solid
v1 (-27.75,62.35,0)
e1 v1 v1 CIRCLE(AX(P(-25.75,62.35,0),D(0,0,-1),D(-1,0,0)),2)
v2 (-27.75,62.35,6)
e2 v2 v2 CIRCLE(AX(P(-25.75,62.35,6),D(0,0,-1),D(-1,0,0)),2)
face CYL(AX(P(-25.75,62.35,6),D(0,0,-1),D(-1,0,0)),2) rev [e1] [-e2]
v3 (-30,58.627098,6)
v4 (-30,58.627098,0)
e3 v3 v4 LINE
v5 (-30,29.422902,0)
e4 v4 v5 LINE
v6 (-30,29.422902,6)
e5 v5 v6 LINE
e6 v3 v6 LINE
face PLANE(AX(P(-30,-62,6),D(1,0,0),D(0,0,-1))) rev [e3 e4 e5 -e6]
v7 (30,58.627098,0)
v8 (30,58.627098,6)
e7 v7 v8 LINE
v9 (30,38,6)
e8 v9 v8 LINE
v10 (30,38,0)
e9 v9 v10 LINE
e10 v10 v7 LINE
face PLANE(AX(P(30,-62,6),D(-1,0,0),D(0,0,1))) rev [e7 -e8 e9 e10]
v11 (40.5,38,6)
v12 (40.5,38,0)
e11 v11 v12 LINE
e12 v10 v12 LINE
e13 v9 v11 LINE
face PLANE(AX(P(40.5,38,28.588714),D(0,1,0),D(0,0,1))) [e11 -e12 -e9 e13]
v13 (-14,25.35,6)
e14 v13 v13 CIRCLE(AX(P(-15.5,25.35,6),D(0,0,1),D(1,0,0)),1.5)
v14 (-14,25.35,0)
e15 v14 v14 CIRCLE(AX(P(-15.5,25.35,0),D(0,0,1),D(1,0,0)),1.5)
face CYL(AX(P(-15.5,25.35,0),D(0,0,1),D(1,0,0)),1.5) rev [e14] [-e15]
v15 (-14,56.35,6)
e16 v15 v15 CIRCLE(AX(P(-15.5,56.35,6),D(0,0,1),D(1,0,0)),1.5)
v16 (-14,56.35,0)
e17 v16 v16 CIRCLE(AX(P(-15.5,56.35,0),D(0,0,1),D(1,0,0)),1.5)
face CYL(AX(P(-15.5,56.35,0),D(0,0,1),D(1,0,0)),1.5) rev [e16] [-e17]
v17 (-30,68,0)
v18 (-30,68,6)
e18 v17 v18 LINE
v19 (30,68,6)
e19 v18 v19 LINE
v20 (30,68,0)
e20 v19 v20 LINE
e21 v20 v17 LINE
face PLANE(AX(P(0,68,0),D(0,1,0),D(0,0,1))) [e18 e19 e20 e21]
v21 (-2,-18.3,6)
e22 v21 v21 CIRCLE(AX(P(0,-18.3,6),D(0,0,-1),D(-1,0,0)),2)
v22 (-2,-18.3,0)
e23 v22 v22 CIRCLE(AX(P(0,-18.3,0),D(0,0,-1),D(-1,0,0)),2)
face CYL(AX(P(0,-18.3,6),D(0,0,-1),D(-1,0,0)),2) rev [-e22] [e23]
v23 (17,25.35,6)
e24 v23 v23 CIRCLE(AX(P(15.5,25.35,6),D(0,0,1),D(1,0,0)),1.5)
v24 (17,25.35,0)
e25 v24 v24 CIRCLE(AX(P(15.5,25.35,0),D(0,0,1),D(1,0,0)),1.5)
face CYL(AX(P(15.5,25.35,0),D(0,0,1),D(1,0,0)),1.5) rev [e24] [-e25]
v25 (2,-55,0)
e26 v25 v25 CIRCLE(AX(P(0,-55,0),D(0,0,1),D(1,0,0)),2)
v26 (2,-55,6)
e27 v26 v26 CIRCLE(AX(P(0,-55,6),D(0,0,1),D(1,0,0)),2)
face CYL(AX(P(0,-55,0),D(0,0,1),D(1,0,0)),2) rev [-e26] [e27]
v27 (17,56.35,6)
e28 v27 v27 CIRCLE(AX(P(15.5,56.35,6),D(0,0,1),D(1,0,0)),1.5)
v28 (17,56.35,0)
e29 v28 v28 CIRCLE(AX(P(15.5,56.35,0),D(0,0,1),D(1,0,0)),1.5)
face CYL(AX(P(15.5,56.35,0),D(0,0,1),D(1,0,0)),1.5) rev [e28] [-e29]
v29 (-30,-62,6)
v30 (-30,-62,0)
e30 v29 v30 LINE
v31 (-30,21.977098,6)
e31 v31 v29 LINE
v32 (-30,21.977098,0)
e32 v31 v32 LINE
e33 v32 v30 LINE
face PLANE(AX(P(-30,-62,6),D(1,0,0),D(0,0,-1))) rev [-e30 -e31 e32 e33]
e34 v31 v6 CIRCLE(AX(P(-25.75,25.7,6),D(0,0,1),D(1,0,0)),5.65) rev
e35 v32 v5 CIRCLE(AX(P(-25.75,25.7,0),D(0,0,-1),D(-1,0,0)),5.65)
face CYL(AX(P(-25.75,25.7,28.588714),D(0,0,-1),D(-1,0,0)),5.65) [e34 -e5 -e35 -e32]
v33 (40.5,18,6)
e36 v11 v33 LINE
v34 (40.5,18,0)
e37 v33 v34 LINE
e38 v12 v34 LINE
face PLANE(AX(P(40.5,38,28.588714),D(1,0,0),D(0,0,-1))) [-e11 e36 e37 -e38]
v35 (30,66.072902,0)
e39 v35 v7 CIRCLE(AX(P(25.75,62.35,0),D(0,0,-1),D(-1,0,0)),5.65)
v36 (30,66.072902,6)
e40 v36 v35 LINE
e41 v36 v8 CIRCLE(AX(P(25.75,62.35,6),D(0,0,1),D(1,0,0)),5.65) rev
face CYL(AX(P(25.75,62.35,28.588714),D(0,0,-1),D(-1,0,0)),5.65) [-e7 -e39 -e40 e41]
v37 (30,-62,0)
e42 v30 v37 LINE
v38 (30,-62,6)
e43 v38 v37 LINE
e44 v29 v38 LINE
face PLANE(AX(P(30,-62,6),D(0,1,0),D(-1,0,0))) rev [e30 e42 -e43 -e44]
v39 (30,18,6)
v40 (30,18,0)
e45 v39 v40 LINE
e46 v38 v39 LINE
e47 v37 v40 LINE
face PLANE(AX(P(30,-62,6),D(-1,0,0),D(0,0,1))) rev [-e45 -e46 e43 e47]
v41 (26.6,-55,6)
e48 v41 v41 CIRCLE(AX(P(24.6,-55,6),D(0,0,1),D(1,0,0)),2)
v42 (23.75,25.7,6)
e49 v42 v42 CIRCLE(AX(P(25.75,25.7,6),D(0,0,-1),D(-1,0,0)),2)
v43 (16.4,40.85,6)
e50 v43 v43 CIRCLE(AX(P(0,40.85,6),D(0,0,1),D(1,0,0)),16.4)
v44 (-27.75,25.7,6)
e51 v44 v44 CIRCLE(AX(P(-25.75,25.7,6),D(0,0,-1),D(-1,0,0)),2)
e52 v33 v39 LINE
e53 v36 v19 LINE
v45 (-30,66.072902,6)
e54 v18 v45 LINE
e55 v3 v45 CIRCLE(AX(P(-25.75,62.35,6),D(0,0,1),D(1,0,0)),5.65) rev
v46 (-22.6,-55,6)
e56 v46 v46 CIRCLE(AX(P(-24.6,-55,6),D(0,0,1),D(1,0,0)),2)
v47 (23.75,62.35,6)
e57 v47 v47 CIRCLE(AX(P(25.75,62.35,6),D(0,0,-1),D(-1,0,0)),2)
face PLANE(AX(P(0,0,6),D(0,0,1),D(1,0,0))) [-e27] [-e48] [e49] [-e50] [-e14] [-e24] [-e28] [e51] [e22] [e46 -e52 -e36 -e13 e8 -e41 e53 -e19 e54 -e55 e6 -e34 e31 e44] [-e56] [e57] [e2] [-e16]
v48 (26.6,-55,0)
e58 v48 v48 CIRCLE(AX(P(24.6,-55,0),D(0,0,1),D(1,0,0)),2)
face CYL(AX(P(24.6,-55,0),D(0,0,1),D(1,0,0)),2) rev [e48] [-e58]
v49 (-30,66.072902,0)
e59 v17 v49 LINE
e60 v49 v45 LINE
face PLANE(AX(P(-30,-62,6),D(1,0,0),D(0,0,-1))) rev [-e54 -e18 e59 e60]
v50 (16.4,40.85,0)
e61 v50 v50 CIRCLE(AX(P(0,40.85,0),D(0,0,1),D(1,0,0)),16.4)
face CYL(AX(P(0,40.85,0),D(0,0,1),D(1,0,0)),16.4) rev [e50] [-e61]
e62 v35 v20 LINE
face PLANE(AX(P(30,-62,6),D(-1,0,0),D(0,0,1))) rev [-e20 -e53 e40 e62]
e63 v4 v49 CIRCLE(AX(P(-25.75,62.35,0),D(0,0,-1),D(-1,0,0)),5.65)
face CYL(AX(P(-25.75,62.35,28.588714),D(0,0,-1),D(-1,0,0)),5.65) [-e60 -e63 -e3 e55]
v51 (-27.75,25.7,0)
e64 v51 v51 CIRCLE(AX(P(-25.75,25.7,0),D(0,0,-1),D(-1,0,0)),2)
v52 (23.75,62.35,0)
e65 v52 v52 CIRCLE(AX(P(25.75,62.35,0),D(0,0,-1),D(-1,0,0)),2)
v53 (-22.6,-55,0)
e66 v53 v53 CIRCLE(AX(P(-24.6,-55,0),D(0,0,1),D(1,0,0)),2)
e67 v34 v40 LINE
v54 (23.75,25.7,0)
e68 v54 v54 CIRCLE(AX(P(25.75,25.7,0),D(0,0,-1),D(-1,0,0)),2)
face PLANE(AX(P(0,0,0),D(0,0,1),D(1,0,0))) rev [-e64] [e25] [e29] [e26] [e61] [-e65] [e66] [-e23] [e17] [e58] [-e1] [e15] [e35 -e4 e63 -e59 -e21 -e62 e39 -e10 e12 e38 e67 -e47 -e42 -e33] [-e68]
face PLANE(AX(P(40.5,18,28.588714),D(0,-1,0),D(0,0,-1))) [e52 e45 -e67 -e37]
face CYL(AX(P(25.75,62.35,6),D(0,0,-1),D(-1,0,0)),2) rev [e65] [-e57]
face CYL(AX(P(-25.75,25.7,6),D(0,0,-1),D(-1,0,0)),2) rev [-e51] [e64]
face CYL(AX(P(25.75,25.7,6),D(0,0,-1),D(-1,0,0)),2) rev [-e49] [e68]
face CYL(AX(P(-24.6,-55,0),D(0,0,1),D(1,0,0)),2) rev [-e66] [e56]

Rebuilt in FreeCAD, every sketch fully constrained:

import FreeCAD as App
import Part
import Sketcher


def add_polygon(sketch, points):
    """Adds a closed chain of lines whose ends are joined by coincident constraints."""
    first, n = sketch.GeometryCount, len(points)
    for a, b in zip(points, points[1:] + points[:1]):
        sketch.addGeometry(Part.LineSegment(App.Vector(*a, 0), App.Vector(*b, 0)), False)
    for i in range(n):
        sketch.addConstraint(Sketcher.Constraint("Coincident", first + i, 2, first + (i + 1) % n, 1))

doc = App.newDocument("Part")
body = doc.addObject("PartDesign::Body", "Body")

# Sketch on XY plane
sketch1 = body.newObject("Sketcher::SketchObject", "Sketch")
sketch1.AttachmentSupport = (doc.getObject("XY_Plane"), [""])
sketch1.MapMode = "FlatFace"
add_polygon(sketch1, [(-30, 62), (-30, -62), (30, -62), (30, 62)])  # lines 0-3
sketch1.addConstraint([
    Sketcher.Constraint("Vertical", 0),
    Sketcher.Constraint("Horizontal", 1),
    Sketcher.Constraint("Vertical", 2),
    Sketcher.Constraint("Horizontal", 3),
    Sketcher.Constraint("Symmetric", 0, 2, 2, 2, -1, 1),
    Sketcher.Constraint("DistanceX", 1, 1, 1, 2, 60.0),
    Sketcher.Constraint("DistanceY", 0, 2, 0, 1, 124.0),
])
pad1 = body.newObject("PartDesign::Pad", "Pad")
pad1.Profile = sketch1
pad1.Length = 6

# Sketch on XY plane
sketch2 = body.newObject("Sketcher::SketchObject", "Sketch001")
sketch2.AttachmentSupport = (doc.getObject("XY_Plane"), [""])
sketch2.MapMode = "FlatFace"
sketch2.AttachmentOffset = App.Placement(App.Vector(0, 0, 6), App.Rotation())
sketch2.addGeometry([
    Part.Circle(App.Vector(0, 40.9, 0), App.Vector(0, 0, 1), 16.4),  # 0
    Part.Circle(App.Vector(-15.5, 56.4, 0), App.Vector(0, 0, 1), 1.5),  # 1
    Part.Circle(App.Vector(15.5, 56.4, 0), App.Vector(0, 0, 1), 1.5),  # 2
    Part.Circle(App.Vector(15.5, 25.4, 0), App.Vector(0, 0, 1), 1.5),  # 3
    Part.Circle(App.Vector(-15.5, 25.4, 0), App.Vector(0, 0, 1), 1.5),  # 4
], False)
sketch2.addConstraint([
    Sketcher.Constraint("Equal", 1, 2),
    Sketcher.Constraint("Equal", 2, 3),
    Sketcher.Constraint("Equal", 3, 4),
    Sketcher.Constraint("Symmetric", 1, 3, 2, 3, -2),
    Sketcher.Constraint("Symmetric", 3, 3, 4, 3, -2),
    Sketcher.Constraint("PointOnObject", 0, 3, -2),
    Sketcher.Constraint("Vertical", 2, 3, 3, 3),
    Sketcher.Constraint("Diameter", 1, 3.0),
    Sketcher.Constraint("Diameter", 0, 32.8),
    Sketcher.Constraint("DistanceX", 1, 3, 2, 3, 31.0),
    Sketcher.Constraint("DistanceY", 3, 3, 2, 3, 31.0),
    Sketcher.Constraint("DistanceY", 0, 3, 1, 3, 15.5),
    Sketcher.Constraint("DistanceY", -1, 1, 0, 3, 40.85),
])
pocket1 = body.newObject("PartDesign::Pocket", "Pocket")
pocket1.Profile = sketch2
pocket1.Type = "ThroughAll"

# Sketch on XY plane
sketch3 = body.newObject("Sketcher::SketchObject", "Sketch002")
sketch3.AttachmentSupport = (doc.getObject("XY_Plane"), [""])
sketch3.MapMode = "FlatFace"
sketch3.AttachmentOffset = App.Placement(App.Vector(0, 0, 6), App.Rotation())
sketch3.addGeometry([
    Part.Circle(App.Vector(-24.6, -55, 0), App.Vector(0, 0, 1), 2),
    Part.Circle(App.Vector(0, -55, 0), App.Vector(0, 0, 1), 2),
    Part.Circle(App.Vector(24.6, -55, 0), App.Vector(0, 0, 1), 2),
], False)
sketch3.addConstraint([
    Sketcher.Constraint("Equal", 0, 1),
    Sketcher.Constraint("Equal", 1, 2),
    Sketcher.Constraint("Symmetric", 0, 3, 2, 3, -2),
    Sketcher.Constraint("PointOnObject", 1, 3, -2),
    Sketcher.Constraint("Horizontal", 0, 3, 1, 3),
    Sketcher.Constraint("Diameter", 0, 4.0),
    Sketcher.Constraint("DistanceY", 0, 3, -1, 1, 55.0),
    Sketcher.Constraint("DistanceX", 0, 3, -1, 1, 24.6),
])
pocket2 = body.newObject("PartDesign::Pocket", "Pocket001")
pocket2.Profile = sketch3
pocket2.Type = "ThroughAll"

# Sketch on XZ plane
sketch4 = body.newObject("Sketcher::SketchObject", "Sketch003")
sketch4.AttachmentSupport = (doc.getObject("XZ_Plane"), [""])
sketch4.MapMode = "FlatFace"
sketch4.AttachmentOffset = App.Placement(App.Vector(0, 0, -62), App.Rotation())
add_polygon(sketch4, [(-30, 0), (-30, 6), (30, 6), (30, 0)])  # lines 0-3
sketch4.addConstraint([
    Sketcher.Constraint("Vertical", 0),
    Sketcher.Constraint("Horizontal", 1),
    Sketcher.Constraint("Vertical", 2),
    Sketcher.Constraint("Horizontal", 3),
    Sketcher.Constraint("Symmetric", 2, 2, 3, 2, -1, 1),
    Sketcher.Constraint("DistanceX", 1, 1, 1, 2, 60.0),
    Sketcher.Constraint("DistanceY", 0, 1, 0, 2, 6.0),
])
pad2 = body.newObject("PartDesign::Pad", "Pad001")
pad2.Profile = sketch4
pad2.Length = 6
pad2.Reversed = True

# Sketch on XY plane
sketch5 = body.newObject("Sketcher::SketchObject", "Sketch004")
sketch5.AttachmentSupport = (doc.getObject("XY_Plane"), [""])
sketch5.MapMode = "FlatFace"
sketch5.addGeometry([
    Part.Circle(App.Vector(25.8, 62.4, 0), App.Vector(0, 0, 1), 2),  # 0
    Part.Circle(App.Vector(-25.8, 62.4, 0), App.Vector(0, 0, 1), 2),  # 1
    Part.Circle(App.Vector(-25.8, 25.7, 0), App.Vector(0, 0, 1), 2),  # 2
    Part.Circle(App.Vector(25.8, 25.7, 0), App.Vector(0, 0, 1), 2),  # 3
    Part.Circle(App.Vector(0, -18.3, 0), App.Vector(0, 0, 1), 2),  # 4
], False)
sketch5.addConstraint([
    Sketcher.Constraint("Equal", 0, 1),
    Sketcher.Constraint("Equal", 1, 2),
    Sketcher.Constraint("Equal", 2, 3),
    Sketcher.Constraint("Equal", 3, 4),
    Sketcher.Constraint("Symmetric", 0, 3, 1, 3, -2),
    Sketcher.Constraint("Symmetric", 2, 3, 3, 3, -2),
    Sketcher.Constraint("PointOnObject", 4, 3, -2),
    Sketcher.Constraint("Vertical", 1, 3, 2, 3),
    Sketcher.Constraint("Diameter", 0, 4.0),
    Sketcher.Constraint("DistanceY", 4, 3, 2, 3, 44.0),
    Sketcher.Constraint("DistanceY", -1, 1, 2, 3, 25.7),
    Sketcher.Constraint("DistanceX", 1, 3, 0, 3, 51.5),
    Sketcher.Constraint("DistanceY", -1, 1, 0, 3, 62.35),
])
pocket3 = body.newObject("PartDesign::Pocket", "Pocket002")
pocket3.Profile = sketch5
pocket3.Type = "ThroughAll"
pocket3.Reversed = True

# Sketch on XY plane
sketch6 = body.newObject("Sketcher::SketchObject", "Sketch005")
sketch6.AttachmentSupport = (doc.getObject("XY_Plane"), [""])
sketch6.MapMode = "FlatFace"
sketch6.addGeometry(Part.Circle(App.Vector(25.8, 62.4, 0), App.Vector(0, 0, 1), 5.7), False)  # 0
sketch6.addGeometry(Part.Circle(App.Vector(25.8, 62.4, 0), App.Vector(0, 0, 1), 2), False)  # 1
sketch6.addGeometry(Part.Circle(App.Vector(-25.8, 62.4, 0), App.Vector(0, 0, 1), 5.7), False)  # 2
sketch6.addGeometry(Part.Circle(App.Vector(-25.8, 62.4, 0), App.Vector(0, 0, 1), 2), False)  # 3
sketch6.addGeometry(Part.Circle(App.Vector(-25.8, 25.7, 0), App.Vector(0, 0, 1), 5.7), False)  # 4
sketch6.addGeometry(Part.Circle(App.Vector(-25.8, 25.7, 0), App.Vector(0, 0, 1), 2), False)  # 5
add_polygon(sketch6, [(40.5, 38), (40.5, 18), (30, 18), (30, 38)])  # lines 6-9
sketch6.addConstraint([
    Sketcher.Constraint("Vertical", 6),
    Sketcher.Constraint("Horizontal", 7),
    Sketcher.Constraint("Vertical", 8),
    Sketcher.Constraint("Horizontal", 9),
    Sketcher.Constraint("Coincident", 1, 3, 0, 3),
    Sketcher.Constraint("Coincident", 3, 3, 2, 3),
    Sketcher.Constraint("Coincident", 5, 3, 4, 3),
    Sketcher.Constraint("Equal", 0, 2),
    Sketcher.Constraint("Equal", 1, 3),
    Sketcher.Constraint("Equal", 2, 4),
    Sketcher.Constraint("Equal", 3, 5),
    Sketcher.Constraint("Symmetric", 0, 3, 2, 3, -2),
    Sketcher.Constraint("Vertical", 3, 3, 4, 3),
    Sketcher.Constraint("Diameter", 1, 4.0),
    Sketcher.Constraint("Diameter", 0, 11.3),
    Sketcher.Constraint("DistanceY", 6, 2, 6, 1, 20.0),
    Sketcher.Constraint("DistanceX", 7, 2, 7, 1, 10.5),
    Sketcher.Constraint("DistanceY", -1, 1, 6, 2, 18.0),
    Sketcher.Constraint("DistanceX", -1, 1, 7, 2, 30.0),
    Sketcher.Constraint("DistanceY", -1, 1, 4, 3, 25.7),
    Sketcher.Constraint("DistanceX", 2, 3, 0, 3, 51.5),
    Sketcher.Constraint("DistanceY", -1, 1, 0, 3, 62.35),
])
pad3 = body.newObject("PartDesign::Pad", "Pad002")
pad3.Profile = sketch6
pad3.Length = 6

doc.recompute()
